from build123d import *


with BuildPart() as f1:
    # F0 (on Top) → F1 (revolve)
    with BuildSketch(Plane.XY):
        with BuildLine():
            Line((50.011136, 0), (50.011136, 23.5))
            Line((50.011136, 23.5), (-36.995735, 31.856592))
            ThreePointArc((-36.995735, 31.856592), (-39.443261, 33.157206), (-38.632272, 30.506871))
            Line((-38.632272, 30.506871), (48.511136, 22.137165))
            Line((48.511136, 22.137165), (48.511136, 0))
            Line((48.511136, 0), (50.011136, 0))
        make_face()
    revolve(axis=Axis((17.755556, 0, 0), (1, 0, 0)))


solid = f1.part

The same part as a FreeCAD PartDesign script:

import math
import FreeCAD as App
import Part
import Sketcher

doc = App.newDocument("Part")
body = doc.addObject("PartDesign::Body", "Body")

# Sketch on XY plane
sketch1 = body.newObject("Sketcher::SketchObject", "Sketch")
sketch1.AttachmentSupport = (doc.getObject("XY_Plane"), [""])
sketch1.MapMode = "FlatFace"
sketch1.addGeometry([
    Part.LineSegment(App.Vector(50.011136, 0, 0), App.Vector(50.011136, 23.5, 0)),  # 0
    Part.LineSegment(App.Vector(50.011136, 23.5, 0), App.Vector(-36.995735, 31.856592, 0)),  # 1
    Part.ArcOfCircle(Part.Circle(App.Vector(-38.488864, 32, 0), App.Vector(0, 0, 1), 1.5), math.radians(-5.486158), math.radians(264.513835)),  # 2
    Part.LineSegment(App.Vector(-38.632272, 30.506871, 0), App.Vector(48.511136, 22.137165, 0)),  # 3
    Part.LineSegment(App.Vector(48.511136, 22.137165, 0), App.Vector(48.511136, 0, 0)),  # 4
    Part.LineSegment(App.Vector(48.511136, 0, 0), App.Vector(50.011136, 0, 0)),  # 5
], False)
sketch1.addConstraint([
    Sketcher.Constraint("Coincident", 0, 2, 1, 1),
    Sketcher.Constraint("Coincident", 1, 2, 2, 1),
    Sketcher.Constraint("Tangent", 2, 2, 3, 1),
    Sketcher.Constraint("Coincident", 3, 2, 4, 1),
    Sketcher.Constraint("Coincident", 4, 2, 5, 1),
    Sketcher.Constraint("Coincident", 5, 2, 0, 1),
    Sketcher.Constraint("Vertical", 0),
    Sketcher.Constraint("Vertical", 4),
    Sketcher.Constraint("Horizontal", 5),
    Sketcher.Constraint("PointOnObject", 4, 2, -1),
    Sketcher.Constraint("Parallel", 1, 3),
    Sketcher.Constraint("Radius", 2, 1.5),
    Sketcher.Constraint("DistanceX", 5, 1, 5, 2, 1.5),
    Sketcher.Constraint("DistanceY", 0, 1, 0, 2, 23.5),
    Sketcher.Constraint("DistanceY", -1, 1, 2, 3, 32.0),
    Sketcher.Constraint("DistanceX", 2, 3, 3, 2, 87.0),
    Sketcher.Constraint("Distance", 3, 87.54442),
    Sketcher.Constraint("DistanceX", 2, 2, -1, 1, 38.632272),
])
revolution = body.newObject("PartDesign::Revolution", "Revolution")
revolution.Profile = sketch1
revolution.ReferenceAxis = (sketch1, ["H_Axis"])
revolution.Angle = 360

doc.recompute()
